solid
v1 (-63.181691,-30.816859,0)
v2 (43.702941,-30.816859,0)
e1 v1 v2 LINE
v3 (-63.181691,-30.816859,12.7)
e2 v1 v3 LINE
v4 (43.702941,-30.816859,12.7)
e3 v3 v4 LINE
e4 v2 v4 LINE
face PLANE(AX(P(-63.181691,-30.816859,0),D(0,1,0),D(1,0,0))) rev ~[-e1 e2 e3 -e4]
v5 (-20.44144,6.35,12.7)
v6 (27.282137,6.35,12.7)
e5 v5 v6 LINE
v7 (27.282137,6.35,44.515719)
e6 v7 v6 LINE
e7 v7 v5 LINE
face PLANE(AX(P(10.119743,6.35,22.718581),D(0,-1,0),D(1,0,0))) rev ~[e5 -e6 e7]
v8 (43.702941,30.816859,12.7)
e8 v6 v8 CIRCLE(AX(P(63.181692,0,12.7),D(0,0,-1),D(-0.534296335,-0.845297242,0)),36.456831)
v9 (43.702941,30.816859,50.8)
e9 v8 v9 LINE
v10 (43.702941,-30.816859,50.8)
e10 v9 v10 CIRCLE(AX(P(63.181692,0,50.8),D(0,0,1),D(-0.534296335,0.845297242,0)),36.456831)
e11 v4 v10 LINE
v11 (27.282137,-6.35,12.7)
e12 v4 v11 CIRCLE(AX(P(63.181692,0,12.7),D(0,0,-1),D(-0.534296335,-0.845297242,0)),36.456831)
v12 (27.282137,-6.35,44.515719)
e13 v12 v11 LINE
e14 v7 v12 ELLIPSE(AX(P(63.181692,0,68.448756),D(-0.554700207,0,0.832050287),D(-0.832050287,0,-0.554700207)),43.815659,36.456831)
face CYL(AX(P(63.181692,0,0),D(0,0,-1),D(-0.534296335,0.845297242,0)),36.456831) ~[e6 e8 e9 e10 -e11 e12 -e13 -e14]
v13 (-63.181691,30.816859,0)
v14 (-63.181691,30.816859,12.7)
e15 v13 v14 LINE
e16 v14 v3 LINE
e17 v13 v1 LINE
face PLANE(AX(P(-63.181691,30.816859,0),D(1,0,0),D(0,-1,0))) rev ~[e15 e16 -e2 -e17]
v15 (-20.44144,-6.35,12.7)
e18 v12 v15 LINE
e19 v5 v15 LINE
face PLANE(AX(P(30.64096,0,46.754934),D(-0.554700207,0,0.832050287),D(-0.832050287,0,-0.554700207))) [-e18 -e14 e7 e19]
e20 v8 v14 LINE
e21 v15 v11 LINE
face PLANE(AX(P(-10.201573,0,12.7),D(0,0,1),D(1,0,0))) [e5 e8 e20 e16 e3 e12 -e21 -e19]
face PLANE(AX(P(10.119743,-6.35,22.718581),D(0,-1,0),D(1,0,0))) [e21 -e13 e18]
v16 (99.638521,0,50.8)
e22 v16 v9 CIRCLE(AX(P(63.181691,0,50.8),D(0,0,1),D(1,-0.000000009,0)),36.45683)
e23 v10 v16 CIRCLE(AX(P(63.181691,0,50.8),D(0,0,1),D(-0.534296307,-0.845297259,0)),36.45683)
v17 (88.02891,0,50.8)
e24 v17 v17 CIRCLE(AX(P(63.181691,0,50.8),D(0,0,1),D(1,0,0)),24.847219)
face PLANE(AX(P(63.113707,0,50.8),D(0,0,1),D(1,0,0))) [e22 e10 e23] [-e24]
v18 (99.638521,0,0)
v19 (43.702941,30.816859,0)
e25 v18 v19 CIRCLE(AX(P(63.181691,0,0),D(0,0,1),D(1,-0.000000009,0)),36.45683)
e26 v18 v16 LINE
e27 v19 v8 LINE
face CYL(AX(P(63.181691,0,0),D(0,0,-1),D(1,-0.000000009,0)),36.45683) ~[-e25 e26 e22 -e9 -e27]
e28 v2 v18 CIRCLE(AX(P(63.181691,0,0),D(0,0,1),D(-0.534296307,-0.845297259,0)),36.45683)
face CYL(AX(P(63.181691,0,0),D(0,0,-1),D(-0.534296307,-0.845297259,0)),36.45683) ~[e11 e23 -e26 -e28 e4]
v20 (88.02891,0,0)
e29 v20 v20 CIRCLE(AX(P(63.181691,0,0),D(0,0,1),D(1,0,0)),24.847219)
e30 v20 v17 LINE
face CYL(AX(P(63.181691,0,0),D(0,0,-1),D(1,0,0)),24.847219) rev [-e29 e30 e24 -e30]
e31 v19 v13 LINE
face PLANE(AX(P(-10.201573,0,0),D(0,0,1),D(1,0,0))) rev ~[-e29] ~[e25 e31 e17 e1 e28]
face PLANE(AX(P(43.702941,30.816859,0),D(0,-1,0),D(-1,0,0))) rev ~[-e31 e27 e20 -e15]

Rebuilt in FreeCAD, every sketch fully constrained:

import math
import FreeCAD as App
import Part
import Sketcher

V = App.Vector
Q = App.Units.Quantity


def add_polygon(sketch, points):
    """Adds a closed chain of lines whose ends are joined by coincident constraints."""
    first, n = sketch.GeometryCount, len(points)
    for a, b in zip(points, points[1:] + points[:1]):
        sketch.addGeometry(Part.LineSegment(App.Vector(*a, 0), App.Vector(*b, 0)), False)
    for i in range(n):
        sketch.addConstraint(Sketcher.Constraint("Coincident", first + i, 2, first + (i + 1) % n, 1))

doc = App.newDocument("Part")
body = doc.addObject("PartDesign::Body", "Body")

sketch1 = body.newObject("Sketcher::SketchObject", "Sketch")
sketch1.AttachmentSupport = (doc.getObject("XY_Plane"), [""])
sketch1.MapMode = "FlatFace"
sketch1.addGeometry(Part.ArcOfCircle(Part.Circle(V(63, 0, 0), V(0, 0, 1), 36), math.radians(0), math.radians(122)), False)
sketch1.addGeometry(Part.ArcOfCircle(Part.Circle(V(63, 0, 0), V(0, 0, 1), 36), math.radians(122), math.radians(238)), False)
sketch1.addGeometry(Part.ArcOfCircle(Part.Circle(V(63, 0, 0), V(0, 0, 1), 36), math.radians(-122), math.radians(0)), False)
sketch1.addGeometry(Part.Circle(V(63, 0, 0), V(0, 0, 1), 25), False)
sketch1.addConstraint(Sketcher.Constraint("Tangent", 0, 2, 1, 1))
sketch1.addConstraint(Sketcher.Constraint("Tangent", 1, 2, 2, 1))
sketch1.addConstraint(Sketcher.Constraint("Tangent", 2, 2, 0, 1))
sketch1.addConstraint(Sketcher.Constraint("Coincident", 3, 3, 0, 3))
sketch1.addConstraint(Sketcher.Constraint("Symmetric", 0, 2, 1, 2, -1))
sketch1.addConstraint(Sketcher.Constraint("PointOnObject", 2, 2, -1))
sketch1.addConstraint(Sketcher.Constraint("Radius", 0, Q("36.45683 mm")))
sketch1.addConstraint(Sketcher.Constraint("Diameter", 3, Q("49.694438 mm")))
sketch1.addConstraint(Sketcher.Constraint("DistanceX", -1, 1, 0, 3, Q("63.181691 mm")))
sketch1.addConstraint(Sketcher.Constraint("DistanceX", -1, 1, 0, 2, Q("43.702941 mm")))
pad1 = body.newObject("PartDesign::Pad", "Pad")
pad1.Profile = sketch1
pad1.Length = Q("2 in")

sketch2 = body.newObject("Sketcher::SketchObject", "Sketch001")
sketch2.AttachmentSupport = (doc.getObject("XY_Plane"), [""])
sketch2.MapMode = "FlatFace"
sketch2.addGeometry(Part.LineSegment(V(44, 31, 0), V(-63, 31, 0)), False)
sketch2.addGeometry(Part.LineSegment(V(-63, 31, 0), V(-63, -31, 0)), False)
sketch2.addGeometry(Part.LineSegment(V(-63, -31, 0), V(44, -31, 0)), False)
sketch2.addGeometry(Part.ArcOfCircle(Part.Circle(V(63, 0, 0), V(0, 0, 1), 36), math.radians(122), math.radians(238)), False)
sketch2.addConstraint(Sketcher.Constraint("Coincident", 0, 2, 1, 1))
sketch2.addConstraint(Sketcher.Constraint("Coincident", 1, 2, 2, 1))
sketch2.addConstraint(Sketcher.Constraint("Coincident", 2, 2, 3, 2))
sketch2.addConstraint(Sketcher.Constraint("Coincident", 3, 1, 0, 1))
sketch2.addConstraint(Sketcher.Constraint("Horizontal", 0))
sketch2.addConstraint(Sketcher.Constraint("Vertical", 1))
sketch2.addConstraint(Sketcher.Constraint("Horizontal", 2))
sketch2.addConstraint(Sketcher.Constraint("Symmetric", 2, 2, 3, 1, -1))
sketch2.addConstraint(Sketcher.Constraint("Radius", 3, Q("36.456831 mm")))
sketch2.addConstraint(Sketcher.Constraint("DistanceY", 1, 2, 1, 1, Q("61.633718 mm")))
sketch2.addConstraint(Sketcher.Constraint("DistanceX", 0, 2, 0, 1, Q("106.884632 mm")))
sketch2.addConstraint(Sketcher.Constraint("DistanceX", 0, 2, -1, 1, Q("63.181691 mm")))
pad2 = body.newObject("PartDesign::Pad", "Pad001")
pad2.Profile = sketch2
pad2.Length = Q("0.5 in")

sketch3 = body.newObject("Sketcher::SketchObject", "Sketch002")
sketch3.AttachmentSupport = (doc.getObject("XZ_Plane"), [""])
sketch3.MapMode = "FlatFace"
add_polygon(sketch3, [(31, 11), (31, 47), (-23, 11)])
sketch3.addConstraint(Sketcher.Constraint("Vertical", 0))
sketch3.addConstraint(Sketcher.Constraint("Horizontal", 2))
sketch3.addConstraint(Sketcher.Constraint("Distance", 1, Q("64.261842 mm")))
sketch3.addConstraint(Sketcher.Constraint("DistanceX", 2, 1, 2, 2, Q("53.469084 mm")))
sketch3.addConstraint(Sketcher.Constraint("DistanceX", -1, 1, 0, 2, Q("30.64096 mm")))
sketch3.addConstraint(Sketcher.Constraint("DistanceY", -1, 1, 0, 2, Q("46.754934 mm")))
pad3 = body.newObject("PartDesign::Pad", "Pad002")
pad3.Profile = sketch3
pad3.Length = Q("0.5 in")
pad3.Midplane = True

doc.recompute()
